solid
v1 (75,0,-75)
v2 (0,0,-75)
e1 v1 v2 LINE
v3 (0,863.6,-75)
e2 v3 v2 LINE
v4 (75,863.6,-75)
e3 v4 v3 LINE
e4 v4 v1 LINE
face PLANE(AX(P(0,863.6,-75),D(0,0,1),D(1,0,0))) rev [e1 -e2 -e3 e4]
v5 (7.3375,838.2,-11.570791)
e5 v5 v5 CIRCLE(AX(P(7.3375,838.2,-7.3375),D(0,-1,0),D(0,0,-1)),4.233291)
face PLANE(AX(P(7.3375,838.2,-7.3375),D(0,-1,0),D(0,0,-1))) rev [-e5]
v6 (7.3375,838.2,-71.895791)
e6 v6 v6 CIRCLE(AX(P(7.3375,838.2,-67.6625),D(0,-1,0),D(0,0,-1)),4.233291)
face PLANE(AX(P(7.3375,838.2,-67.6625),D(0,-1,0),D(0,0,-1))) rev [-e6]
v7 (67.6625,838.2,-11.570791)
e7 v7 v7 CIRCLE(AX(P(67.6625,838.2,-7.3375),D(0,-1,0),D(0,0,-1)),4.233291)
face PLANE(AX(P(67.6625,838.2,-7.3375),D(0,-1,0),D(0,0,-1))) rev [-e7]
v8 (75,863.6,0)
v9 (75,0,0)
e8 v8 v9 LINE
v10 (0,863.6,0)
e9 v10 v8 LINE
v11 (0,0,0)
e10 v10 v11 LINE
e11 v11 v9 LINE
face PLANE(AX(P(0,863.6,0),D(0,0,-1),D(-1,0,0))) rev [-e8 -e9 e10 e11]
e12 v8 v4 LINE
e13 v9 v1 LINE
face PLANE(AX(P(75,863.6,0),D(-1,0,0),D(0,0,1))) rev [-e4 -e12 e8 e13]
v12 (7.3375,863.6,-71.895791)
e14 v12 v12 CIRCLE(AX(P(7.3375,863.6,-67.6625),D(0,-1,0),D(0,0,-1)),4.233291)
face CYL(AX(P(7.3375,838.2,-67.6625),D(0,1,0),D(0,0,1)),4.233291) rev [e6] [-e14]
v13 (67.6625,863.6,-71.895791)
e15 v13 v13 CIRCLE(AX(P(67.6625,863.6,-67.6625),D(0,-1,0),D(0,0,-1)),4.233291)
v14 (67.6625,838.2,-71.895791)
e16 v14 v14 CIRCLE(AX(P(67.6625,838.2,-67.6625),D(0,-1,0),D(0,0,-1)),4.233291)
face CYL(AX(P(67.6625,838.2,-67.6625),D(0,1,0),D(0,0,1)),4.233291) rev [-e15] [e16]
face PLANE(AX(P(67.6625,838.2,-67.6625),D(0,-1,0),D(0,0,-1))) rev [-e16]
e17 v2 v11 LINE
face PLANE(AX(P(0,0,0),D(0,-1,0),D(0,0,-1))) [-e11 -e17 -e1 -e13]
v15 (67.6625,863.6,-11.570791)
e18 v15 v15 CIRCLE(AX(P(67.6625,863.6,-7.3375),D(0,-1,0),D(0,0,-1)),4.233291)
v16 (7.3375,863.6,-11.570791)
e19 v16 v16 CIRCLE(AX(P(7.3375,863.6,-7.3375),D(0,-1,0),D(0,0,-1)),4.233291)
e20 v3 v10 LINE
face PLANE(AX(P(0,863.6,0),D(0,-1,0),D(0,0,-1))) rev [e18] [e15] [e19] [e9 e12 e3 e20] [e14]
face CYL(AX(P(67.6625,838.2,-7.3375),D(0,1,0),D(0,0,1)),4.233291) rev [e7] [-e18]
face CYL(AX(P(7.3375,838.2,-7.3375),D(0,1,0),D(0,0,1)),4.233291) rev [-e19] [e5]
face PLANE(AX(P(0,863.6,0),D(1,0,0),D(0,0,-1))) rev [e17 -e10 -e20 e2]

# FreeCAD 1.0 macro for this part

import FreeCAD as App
import Part
import Sketcher

V = App.Vector
Q = App.Units.Quantity

doc = App.newDocument("Part")
body = doc.addObject("PartDesign::Body", "Body")

sketch1 = doc.addObject("Sketcher::SketchObject", "Sketch")
body.addObject(sketch1)
sketch1.AttachmentSupport = (doc.XZ_Plane, [""])
sketch1.MapMode = "FlatFace"
sketch1.addGeometry(Part.LineSegment(V(0, -75, 0), V(0, 0, 0)), False)
sketch1.addGeometry(Part.LineSegment(V(0, 0, 0), V(75, 0, 0)), False)
sketch1.addGeometry(Part.LineSegment(V(75, 0, 0), V(75, -75, 0)), False)
sketch1.addGeometry(Part.LineSegment(V(75, -75, 0), V(0, -75, 0)), False)
sketch1.addConstraint(Sketcher.Constraint("Coincident", 0, 2, 1, 1))
sketch1.addConstraint(Sketcher.Constraint("Coincident", 1, 2, 2, 1))
sketch1.addConstraint(Sketcher.Constraint("Coincident", 2, 2, 3, 1))
sketch1.addConstraint(Sketcher.Constraint("Coincident", 3, 2, 0, 1))
sketch1.addConstraint(Sketcher.Constraint("Vertical", 0))
sketch1.addConstraint(Sketcher.Constraint("Horizontal", 1))
sketch1.addConstraint(Sketcher.Constraint("Vertical", 2))
sketch1.addConstraint(Sketcher.Constraint("Horizontal", 3))
sketch1.addConstraint(Sketcher.Constraint("Coincident", 0, 2, -1, 1))
sketch1.addConstraint(Sketcher.Constraint("Equal", 3, 0))
sketch1.addConstraint(Sketcher.Constraint("DistanceX", 1, 1, 1, 2, 75.0))
pad1 = doc.addObject("PartDesign::Pad", "Pad")
body.addObject(pad1)
pad1.Profile = sketch1
pad1.Length = Q("34 in")
pad1.Reversed = True

sketch2 = doc.addObject("Sketcher::SketchObject", "Sketch001")
body.addObject(sketch2)
sketch2.AttachmentSupport = (doc.XZ_Plane, [""])
sketch2.MapMode = "FlatFace"
sketch2.AttachmentOffset = App.Placement(V(0, 0, -34 * 25.4), App.Rotation())
sketch2.addGeometry(Part.Circle(V(7.3, -67.7, 0), V(0, 0, 1), 4.2), False)
sketch2.addGeometry(Part.Circle(V(67.7, -67.7, 0), V(0, 0, 1), 4.2), False)
sketch2.addGeometry(Part.Circle(V(7.3, -7.3, 0), V(0, 0, 1), 4.2), False)
sketch2.addGeometry(Part.Circle(V(67.7, -7.3, 0), V(0, 0, 1), 4.2), False)
sketch2.addConstraint(Sketcher.Constraint("Equal", 0, 1))
sketch2.addConstraint(Sketcher.Constraint("Equal", 1, 2))
sketch2.addConstraint(Sketcher.Constraint("Equal", 2, 3))
sketch2.addConstraint(Sketcher.Constraint("Horizontal", 0, 3, 1, 3))
sketch2.addConstraint(Sketcher.Constraint("Horizontal", 2, 3, 3, 3))
sketch2.addConstraint(Sketcher.Constraint("Vertical", 0, 3, 2, 3))
sketch2.addConstraint(Sketcher.Constraint("Vertical", 1, 3, 3, 3))
sketch2.addConstraint(Sketcher.Constraint("DistanceX", 0, 3, 1, 3, Q("2.375 in")))
sketch2.addConstraint(Sketcher.Constraint("DistanceY", 0, 3, 2, 3, Q("2.375 in")))
sketch2.addConstraint(Sketcher.Constraint("Diameter", 0, 8.466582))
sketch2.addConstraint(Sketcher.Constraint("DistanceX", -1, 1, 0, 3, 7.3375))
sketch2.addConstraint(Sketcher.Constraint("DistanceY", 0, 3, -1, 1, 67.6625))
pocket1 = doc.addObject("PartDesign::Pocket", "Pocket")
body.addObject(pocket1)
pocket1.Profile = sketch2
pocket1.Length = Q("1 in")
pocket1.Reversed = True

doc.recompute()
